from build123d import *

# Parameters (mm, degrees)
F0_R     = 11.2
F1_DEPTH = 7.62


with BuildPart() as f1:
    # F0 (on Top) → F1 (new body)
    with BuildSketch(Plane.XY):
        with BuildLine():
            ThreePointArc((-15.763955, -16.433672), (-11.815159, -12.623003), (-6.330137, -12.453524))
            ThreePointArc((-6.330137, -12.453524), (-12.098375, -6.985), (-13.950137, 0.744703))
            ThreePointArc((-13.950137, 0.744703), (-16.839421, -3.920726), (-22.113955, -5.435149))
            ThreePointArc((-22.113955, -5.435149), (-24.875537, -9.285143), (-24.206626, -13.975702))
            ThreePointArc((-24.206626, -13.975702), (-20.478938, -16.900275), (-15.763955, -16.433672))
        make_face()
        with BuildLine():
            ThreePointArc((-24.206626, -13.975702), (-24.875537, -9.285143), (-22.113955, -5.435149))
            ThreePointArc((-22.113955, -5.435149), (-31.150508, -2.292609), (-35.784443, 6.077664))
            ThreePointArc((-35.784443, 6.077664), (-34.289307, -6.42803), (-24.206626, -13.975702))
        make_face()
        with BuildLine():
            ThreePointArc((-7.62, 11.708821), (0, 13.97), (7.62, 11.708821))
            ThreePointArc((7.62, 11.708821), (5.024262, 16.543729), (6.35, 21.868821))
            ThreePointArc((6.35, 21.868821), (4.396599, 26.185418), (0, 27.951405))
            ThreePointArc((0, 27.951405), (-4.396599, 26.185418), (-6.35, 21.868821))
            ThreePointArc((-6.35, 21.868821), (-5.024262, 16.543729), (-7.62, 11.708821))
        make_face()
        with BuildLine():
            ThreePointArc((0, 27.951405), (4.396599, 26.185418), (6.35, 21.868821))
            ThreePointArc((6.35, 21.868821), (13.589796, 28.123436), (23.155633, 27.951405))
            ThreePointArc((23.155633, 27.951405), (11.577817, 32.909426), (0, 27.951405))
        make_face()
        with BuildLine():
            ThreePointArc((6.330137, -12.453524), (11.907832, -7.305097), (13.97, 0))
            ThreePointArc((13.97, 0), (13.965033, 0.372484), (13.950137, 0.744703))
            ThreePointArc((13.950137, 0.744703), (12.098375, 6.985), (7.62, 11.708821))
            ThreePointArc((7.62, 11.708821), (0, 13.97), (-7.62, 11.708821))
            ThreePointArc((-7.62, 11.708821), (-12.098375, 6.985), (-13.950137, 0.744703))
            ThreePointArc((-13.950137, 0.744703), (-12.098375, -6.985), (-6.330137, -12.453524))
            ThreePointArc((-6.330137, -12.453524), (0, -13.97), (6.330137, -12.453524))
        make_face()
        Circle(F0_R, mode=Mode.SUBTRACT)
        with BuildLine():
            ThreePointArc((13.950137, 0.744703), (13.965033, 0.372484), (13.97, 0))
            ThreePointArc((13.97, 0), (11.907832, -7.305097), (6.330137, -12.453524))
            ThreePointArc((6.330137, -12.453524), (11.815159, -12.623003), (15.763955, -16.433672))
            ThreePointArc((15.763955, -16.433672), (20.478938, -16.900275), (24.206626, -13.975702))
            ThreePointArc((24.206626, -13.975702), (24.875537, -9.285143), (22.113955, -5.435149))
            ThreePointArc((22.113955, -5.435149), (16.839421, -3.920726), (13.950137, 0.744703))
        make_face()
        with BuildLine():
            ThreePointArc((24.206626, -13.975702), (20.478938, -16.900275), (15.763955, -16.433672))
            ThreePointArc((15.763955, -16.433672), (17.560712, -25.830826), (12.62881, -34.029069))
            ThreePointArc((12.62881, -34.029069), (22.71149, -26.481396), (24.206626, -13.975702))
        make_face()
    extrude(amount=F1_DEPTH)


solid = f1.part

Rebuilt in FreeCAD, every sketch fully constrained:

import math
import FreeCAD as App
import Part
import Sketcher
from FreeCAD import Vector
Q = App.Units.Quantity

doc = App.newDocument("Part")
body = doc.addObject("PartDesign::Body", "Body")

sketch1 = doc.addObject("Sketcher::SketchObject", "Sketch")
body.addObject(sketch1)
sketch1.AttachmentSupport = (doc.XY_Plane, [""])
sketch1.MapMode = "FlatFace"
sketch1.addGeometry([
    Part.ArcOfCircle(Part.Circle(Vector(-8.8531, -19.643729, 0), Vector(0, 0, 1), 7.619999), math.radians(70.664596), math.radians(155.085374)),
    Part.ArcOfCircle(Part.Circle(Vector(0, -0.000002, 0), Vector(0, 0, 1), 13.969998), math.radians(-116.944273), math.radians(-63.055727)),
    Part.ArcOfCircle(Part.Circle(Vector(8.8531, -19.643729, 0), Vector(0, 0, 1), 7.619999), math.radians(24.914626), math.radians(109.335404)),
    Part.ArcOfCircle(Part.Circle(Vector(4.375587, -23.481503, 0), Vector(0, 0, 1), 13.392791), math.radians(-51.957653), math.radians(31.751799)),
    Part.ArcOfCircle(Part.Circle(Vector(8.857604, -18.482851, 0), Vector(0, 0, 1), 15.99709), math.radians(-76.36456), math.radians(16.364564)),
    Part.ArcOfCircle(Part.Circle(Vector(18.702275, -10.797762, 0), Vector(0, 0, 1), 6.355878), math.radians(-30.000009), math.radians(57.535591)),
    Part.ArcOfCircle(Part.Circle(Vector(21.438518, 2.154855, 0), Vector(0, 0, 1), 7.619998), math.radians(-169.335407), math.radians(-84.914624)),
    Part.ArcOfCircle(Part.Circle(Vector(0.000002, 0, 0), Vector(0, 0, 1), 13.969998), math.radians(3.055731), math.radians(56.944274)),
    Part.ArcOfCircle(Part.Circle(Vector(12.585419, 17.488873, 0), Vector(0, 0, 1), 7.619999), math.radians(144.914628), math.radians(229.335405)),
    Part.ArcOfCircle(Part.Circle(Vector(18.147785, 15.530121, 0), Vector(0, 0, 1), 13.39279), math.radians(68.042347), math.radians(151.751804)),
    Part.ArcOfCircle(Part.Circle(Vector(11.577817, 16.912337, 0), Vector(0, 0, 1), 15.997089), math.radians(43.635437), math.radians(136.364563)),
    Part.ArcOfCircle(Part.Circle(Vector(0.000001, 21.595526, 0), Vector(0, 0, 1), 6.355879), math.radians(90.000008), math.radians(177.53559)),
    Part.ArcOfCircle(Part.Circle(Vector(-12.585419, 17.488873, 0), Vector(0, 0, 1), 7.619999), math.radians(-49.335405), math.radians(35.085372)),
    Part.ArcOfCircle(Part.Circle(Vector(-0.000002, 0, 0), Vector(0, 0, 1), 13.969998), math.radians(123.055726), math.radians(176.944269)),
    Part.ArcOfCircle(Part.Circle(Vector(-21.438518, 2.154855, 0), Vector(0, 0, 1), 7.619998), math.radians(-95.085376), math.radians(-10.664593)),
    Part.ArcOfCircle(Part.Circle(Vector(-22.523372, 7.951382, 0), Vector(0, 0, 1), 13.39279), math.radians(-171.957652), math.radians(-88.248199)),
    Part.ArcOfCircle(Part.Circle(Vector(-20.435423, 1.570514, 0), Vector(0, 0, 1), 15.997088), math.radians(163.635433), math.radians(256.36457)),
    Part.ArcOfCircle(Part.Circle(Vector(-18.702274, -10.797763, 0), Vector(0, 0, 1), 6.355878), math.radians(-150.000001), math.radians(-62.464415)),
    Part.Circle(Vector(0, 0, 0), Vector(0, 0, 1), 11.2),
], False)
sketch1.addConstraint([
    Sketcher.Constraint("Coincident", 0, 1, 1, 1),
    Sketcher.Constraint("Coincident", 1, 2, 2, 2),
    Sketcher.Constraint("Coincident", 2, 1, 3, 2),
    Sketcher.Constraint("Coincident", 3, 1, 4, 1),
    Sketcher.Constraint("Coincident", 4, 2, 5, 1),
    Sketcher.Constraint("Coincident", 5, 2, 6, 2),
    Sketcher.Constraint("Coincident", 6, 1, 7, 1),
    Sketcher.Constraint("Coincident", 7, 2, 8, 2),
    Sketcher.Constraint("Coincident", 8, 1, 9, 2),
    Sketcher.Constraint("Coincident", 9, 1, 10, 1),
    Sketcher.Constraint("Coincident", 10, 2, 11, 1),
    Sketcher.Constraint("Coincident", 11, 2, 12, 2),
    Sketcher.Constraint("Coincident", 12, 1, 13, 1),
    Sketcher.Constraint("Coincident", 13, 2, 14, 2),
    Sketcher.Constraint("Coincident", 14, 1, 15, 2),
    Sketcher.Constraint("Coincident", 15, 1, 16, 1),
    Sketcher.Constraint("Coincident", 16, 2, 17, 1),
    Sketcher.Constraint("Coincident", 17, 2, 0, 2),
    Sketcher.Constraint("Coincident", 1, 3, -1, 1),
    Sketcher.Constraint("Coincident", 7, 3, -1, 1),
    Sketcher.Constraint("Coincident", 13, 3, -1, 1),
    Sketcher.Constraint("Coincident", 18, 3, -1, 1),
    Sketcher.Constraint("Equal", 0, 2),
    Sketcher.Constraint("Equal", 2, 6),
    Sketcher.Constraint("Equal", 1, 7),
    Sketcher.Constraint("Equal", 6, 8),
    Sketcher.Constraint("Equal", 3, 9),
    Sketcher.Constraint("Equal", 4, 10),
    Sketcher.Constraint("Equal", 5, 11),
    Sketcher.Constraint("Equal", 8, 12),
    Sketcher.Constraint("Equal", 7, 13),
    Sketcher.Constraint("Equal", 12, 14),
    Sketcher.Constraint("Equal", 9, 15),
    Sketcher.Constraint("Equal", 10, 16),
    Sketcher.Constraint("Equal", 11, 17),
    Sketcher.Constraint("Symmetric", 0, 3, 2, 3, -2),
    Sketcher.Constraint("Symmetric", 8, 3, 12, 3, -2),
    Sketcher.Constraint("Symmetric", 6, 3, 14, 3, -2),
    Sketcher.Constraint("Symmetric", 5, 3, 17, 3, -2),
    Sketcher.Constraint("PointOnObject", 11, 3, -2),
    Sketcher.Constraint("PointOnObject", 10, 2, -2),
    Sketcher.Constraint("Horizontal", 9, 1, 10, 2),
    Sketcher.Constraint("Horizontal", 8, 1, 11, 2),
    Sketcher.Constraint("Horizontal", 5, 2, 14, 1),
    Sketcher.Constraint("Horizontal", 4, 2, 16, 2),
    Sketcher.Constraint("Horizontal", 2, 1, 17, 2),
    Sketcher.Constraint("Radius", 0, Q("0.3 in")),
    Sketcher.Constraint("Radius", 1, Q("0.5499999 in")),
    Sketcher.Constraint("DistanceX", -1, 1, 7, 2, Q("0.3 in")),
    Sketcher.Constraint("DistanceY", 7, 2, 8, 1, Q("0.4 in")),
    Sketcher.Constraint("DistanceX", 11, 2, 8, 1, Q("0.5 in")),
    Sketcher.Constraint("Diameter", 18, 22.4),
    Sketcher.Constraint("DistanceX", 2, 1, 5, 2, Q("0.25 in")),
    Sketcher.Constraint("Radius", 3, 13.392791),
    Sketcher.Constraint("Radius", 4, 15.99709),
    Sketcher.Constraint("Radius", 11, 6.355879),
    Sketcher.Constraint("DistanceX", 0, 3, -1, 1, 8.8531),
    Sketcher.Constraint("DistanceY", 4, 2, -1, 1, 13.975702),
    Sketcher.Constraint("DistanceY", 3, 3, 1, 3, 23.481501),
    Sketcher.Constraint("DistanceX", 7, 3, 4, 3, 8.857602),
    Sketcher.Constraint("DistanceX", 8, 3, 6, 3, 8.853099),
    Sketcher.Constraint("DistanceX", 10, 3, 6, 3, 9.860701),
    Sketcher.Constraint("DistanceY", 0, 3, -1, 1, 19.643729),
    Sketcher.Constraint("DistanceY", 4, 3, -1, 1, 18.482851),
    Sketcher.Constraint("DistanceX", 15, 3, -1, 1, 22.523372),
    Sketcher.Constraint("DistanceY", -1, 1, 15, 3, 7.951382),
    Sketcher.Constraint("DistanceY", 16, 3, 14, 3, 0.584341),
])
pad1 = doc.addObject("PartDesign::Pad", "Pad")
body.addObject(pad1)
pad1.Profile = sketch1
pad1.Length = Q("0.3 in")

doc.recompute()
